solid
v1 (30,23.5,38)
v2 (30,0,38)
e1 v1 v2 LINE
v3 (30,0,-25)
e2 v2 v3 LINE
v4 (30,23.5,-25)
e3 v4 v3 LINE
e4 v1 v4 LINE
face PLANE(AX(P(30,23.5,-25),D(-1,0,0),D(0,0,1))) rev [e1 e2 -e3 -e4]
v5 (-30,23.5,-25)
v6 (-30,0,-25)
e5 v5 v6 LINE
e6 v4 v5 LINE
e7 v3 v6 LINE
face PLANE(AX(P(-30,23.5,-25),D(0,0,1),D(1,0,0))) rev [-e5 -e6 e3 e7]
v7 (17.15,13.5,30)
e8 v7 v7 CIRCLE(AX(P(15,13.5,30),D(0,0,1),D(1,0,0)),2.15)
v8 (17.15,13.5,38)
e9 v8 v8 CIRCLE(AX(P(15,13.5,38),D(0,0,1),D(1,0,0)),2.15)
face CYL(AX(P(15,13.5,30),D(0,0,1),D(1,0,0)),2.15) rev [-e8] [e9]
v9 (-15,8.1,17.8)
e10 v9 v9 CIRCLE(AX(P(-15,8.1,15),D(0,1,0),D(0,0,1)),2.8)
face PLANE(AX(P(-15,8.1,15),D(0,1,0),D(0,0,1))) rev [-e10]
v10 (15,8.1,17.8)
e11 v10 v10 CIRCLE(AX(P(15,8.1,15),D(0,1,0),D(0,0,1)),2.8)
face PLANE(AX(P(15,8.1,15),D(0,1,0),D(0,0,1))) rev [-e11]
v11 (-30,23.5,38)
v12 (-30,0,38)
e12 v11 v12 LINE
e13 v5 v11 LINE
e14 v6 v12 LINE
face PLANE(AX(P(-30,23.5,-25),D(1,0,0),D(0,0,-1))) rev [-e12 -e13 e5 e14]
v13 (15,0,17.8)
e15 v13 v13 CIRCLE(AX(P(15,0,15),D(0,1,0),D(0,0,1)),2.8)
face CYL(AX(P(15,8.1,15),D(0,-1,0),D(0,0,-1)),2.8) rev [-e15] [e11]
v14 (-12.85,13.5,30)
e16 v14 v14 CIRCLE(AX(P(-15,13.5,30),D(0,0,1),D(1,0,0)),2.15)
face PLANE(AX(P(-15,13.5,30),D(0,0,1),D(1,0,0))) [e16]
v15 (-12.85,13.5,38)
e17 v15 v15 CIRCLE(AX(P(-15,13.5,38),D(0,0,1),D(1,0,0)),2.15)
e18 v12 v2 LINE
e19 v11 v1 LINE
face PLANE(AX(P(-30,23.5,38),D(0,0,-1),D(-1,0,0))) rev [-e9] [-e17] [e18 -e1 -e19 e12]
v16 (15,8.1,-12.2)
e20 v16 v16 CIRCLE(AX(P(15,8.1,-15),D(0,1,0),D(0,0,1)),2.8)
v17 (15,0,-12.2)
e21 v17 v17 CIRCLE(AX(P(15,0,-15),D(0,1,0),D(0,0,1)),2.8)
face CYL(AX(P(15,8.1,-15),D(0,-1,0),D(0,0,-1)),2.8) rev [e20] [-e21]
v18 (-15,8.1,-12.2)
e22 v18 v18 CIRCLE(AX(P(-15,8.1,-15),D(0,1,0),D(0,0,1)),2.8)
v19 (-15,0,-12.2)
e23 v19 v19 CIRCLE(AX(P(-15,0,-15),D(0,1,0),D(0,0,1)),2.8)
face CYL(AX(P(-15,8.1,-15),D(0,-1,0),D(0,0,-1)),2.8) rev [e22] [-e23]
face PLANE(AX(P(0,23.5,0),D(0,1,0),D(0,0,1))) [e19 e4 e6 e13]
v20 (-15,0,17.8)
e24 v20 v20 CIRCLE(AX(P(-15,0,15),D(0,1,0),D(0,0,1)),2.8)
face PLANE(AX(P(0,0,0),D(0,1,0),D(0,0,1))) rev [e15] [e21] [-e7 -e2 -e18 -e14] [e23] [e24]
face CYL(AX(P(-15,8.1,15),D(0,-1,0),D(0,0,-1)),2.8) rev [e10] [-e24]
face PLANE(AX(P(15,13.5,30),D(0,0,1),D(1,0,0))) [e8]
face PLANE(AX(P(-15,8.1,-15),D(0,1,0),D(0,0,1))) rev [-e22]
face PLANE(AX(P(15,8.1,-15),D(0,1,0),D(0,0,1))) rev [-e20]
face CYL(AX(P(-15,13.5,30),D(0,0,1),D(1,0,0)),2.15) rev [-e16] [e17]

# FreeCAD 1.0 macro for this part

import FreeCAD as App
import Part
import Sketcher
Q = App.Units.Quantity


def add_polygon(sketch, points):
    """Adds a closed chain of lines whose ends are joined by coincident constraints."""
    first, n = sketch.GeometryCount, len(points)
    for a, b in zip(points, points[1:] + points[:1]):
        sketch.addGeometry(Part.LineSegment(App.Vector(*a, 0), App.Vector(*b, 0)), False)
    for i in range(n):
        sketch.addConstraint(Sketcher.Constraint("Coincident", first + i, 2, first + (i + 1) % n, 1))

doc = App.newDocument("Part")
body = doc.addObject("PartDesign::Body", "Body")

sketch1 = doc.addObject("Sketcher::SketchObject", "Sketch")
body.addObject(sketch1)
sketch1.AttachmentSupport = (doc.XZ_Plane, [""])
sketch1.MapMode = "FlatFace"
add_polygon(sketch1, [(-30, -25), (-30, 38), (30, 38), (30, -25)])
sketch1.addConstraint([
    Sketcher.Constraint("Vertical", 0),
    Sketcher.Constraint("Horizontal", 1),
    Sketcher.Constraint("Vertical", 2),
    Sketcher.Constraint("Horizontal", 3),
    Sketcher.Constraint("DistanceX", 1, 1, 1, 2, Q("60 mm")),
    Sketcher.Constraint("DistanceY", 0, 1, 0, 2, Q("63 mm")),
    Sketcher.Constraint("DistanceX", 0, 2, -1, 1, Q("30 mm")),
    Sketcher.Constraint("DistanceY", -1, 1, 0, 2, Q("38 mm")),
])
pad1 = doc.addObject("PartDesign::Pad", "Pad")
body.addObject(pad1)
pad1.Profile = sketch1
pad1.Length = 23.5
pad1.Reversed = True

sketch2 = doc.addObject("Sketcher::SketchObject", "Sketch001")
body.addObject(sketch2)
sketch2.AttachmentSupport = (doc.XY_Plane, [""])
sketch2.MapMode = "FlatFace"
sketch2.AttachmentOffset = App.Placement(App.Vector(0, 0, 38), App.Rotation())
sketch2.addGeometry([
    Part.Circle(App.Vector(15, 13.5, 0), App.Vector(0, 0, 1), 2.15),
    Part.Circle(App.Vector(-15, 13.5, 0), App.Vector(0, 0, 1), 2.15),
], False)
sketch2.addConstraint([
    Sketcher.Constraint("Equal", 0, 1),
    Sketcher.Constraint("Symmetric", 0, 3, 1, 3, -2),
    Sketcher.Constraint("Diameter", 0, Q("4.3 mm")),
    Sketcher.Constraint("DistanceX", -1, 1, 0, 3, Q("15 mm")),
    Sketcher.Constraint("DistanceY", -1, 1, 0, 3, Q("13.5 mm")),
])
pocket1 = doc.addObject("PartDesign::Pocket", "Pocket")
body.addObject(pocket1)
pocket1.Profile = sketch2
pocket1.Length = 8

sketch3 = doc.addObject("Sketcher::SketchObject", "Sketch002")
body.addObject(sketch3)
sketch3.AttachmentSupport = (doc.XZ_Plane, [""])
sketch3.MapMode = "FlatFace"
sketch3.addGeometry([
    Part.Circle(App.Vector(15, 15, 0), App.Vector(0, 0, 1), 2.8),
    Part.Circle(App.Vector(-15, 15, 0), App.Vector(0, 0, 1), 2.8),
    Part.Circle(App.Vector(15, -15, 0), App.Vector(0, 0, 1), 2.8),
    Part.Circle(App.Vector(-15, -15, 0), App.Vector(0, 0, 1), 2.8),
], False)
sketch3.addConstraint([
    Sketcher.Constraint("Equal", 0, 1),
    Sketcher.Constraint("Equal", 1, 2),
    Sketcher.Constraint("Equal", 2, 3),
    Sketcher.Constraint("Symmetric", 1, 3, 2, 3, -1, 1),
    Sketcher.Constraint("Symmetric", 0, 3, 3, 3, -1, 1),
    Sketcher.Constraint("Symmetric", 0, 3, 1, 3, -2),
    Sketcher.Constraint("Diameter", 0, Q("5.6 mm")),
    Sketcher.Constraint("DistanceX", -1, 1, 0, 3, Q("15 mm")),
    Sketcher.Constraint("DistanceY", -1, 1, 0, 3, Q("15 mm")),
])
pocket2 = doc.addObject("PartDesign::Pocket", "Pocket001")
body.addObject(pocket2)
pocket2.Profile = sketch3
pocket2.Length = 8.1

doc.recompute()
